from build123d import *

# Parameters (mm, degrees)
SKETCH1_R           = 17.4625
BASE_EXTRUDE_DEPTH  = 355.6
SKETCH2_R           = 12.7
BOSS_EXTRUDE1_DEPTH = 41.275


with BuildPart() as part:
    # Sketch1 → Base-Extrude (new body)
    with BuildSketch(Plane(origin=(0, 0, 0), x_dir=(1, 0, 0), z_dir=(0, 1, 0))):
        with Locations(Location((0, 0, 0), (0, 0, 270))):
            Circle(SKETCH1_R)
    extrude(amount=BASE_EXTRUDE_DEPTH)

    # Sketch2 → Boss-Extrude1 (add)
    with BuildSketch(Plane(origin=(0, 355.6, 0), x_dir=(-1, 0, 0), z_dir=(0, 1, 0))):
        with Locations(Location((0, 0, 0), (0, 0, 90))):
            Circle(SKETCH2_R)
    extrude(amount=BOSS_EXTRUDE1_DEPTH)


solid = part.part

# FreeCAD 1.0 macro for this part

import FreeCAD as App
import Part
import Sketcher
from FreeCAD import Vector
Q = App.Units.Quantity

doc = App.newDocument("Part")
params = doc.addObject("Spreadsheet::Sheet", "Params")
for row, (alias, value) in enumerate([
    ("sketch1_diameter", "1.375 in"),
    ("pad1_length", "14 in"),
    ("sketch2_diameter", "1 in"),
    ("pad2_length", "1.625 in"),
], start=1):
    params.set(f"A{row}", alias)
    params.set(f"B{row}", "=" + value)
    params.setAlias(f"B{row}", alias)

body = doc.addObject("PartDesign::Body", "Body")

sketch1 = doc.addObject("Sketcher::SketchObject", "Sketch")
body.addObject(sketch1)
sketch1.AttachmentSupport = (doc.XZ_Plane, [""])
sketch1.MapMode = "FlatFace"
sketch1.addGeometry(Part.Circle(Vector(0, 0, 0), Vector(0, 0, 1), 17.4625), False)
sketch1.addConstraint([
    Sketcher.Constraint("Coincident", 0, 3, -1, 1),
    Sketcher.Constraint("Diameter", 0, Q("1.375 in")),
])
sketch1.setExpression("Constraints[1]", "Params.sketch1_diameter")
pad1 = doc.addObject("PartDesign::Pad", "Pad")
body.addObject(pad1)
pad1.Profile = sketch1
pad1.setExpression("Length", "Params.pad1_length")
pad1.Reversed = True

sketch2 = doc.addObject("Sketcher::SketchObject", "Sketch001")
body.addObject(sketch2)
sketch2.AttachmentSupport = (doc.XZ_Plane, [""])
sketch2.MapMode = "FlatFace"
sketch2.AttachmentOffset = App.Placement(Vector(0, 0, -14 * 25.4), App.Rotation())
sketch2.addGeometry(Part.Circle(Vector(0, 0, 0), Vector(0, 0, 1), 12.7), False)
sketch2.addConstraint([
    Sketcher.Constraint("Coincident", 0, 3, -1, 1),
    Sketcher.Constraint("Diameter", 0, Q("1 in")),
])
sketch2.setExpression("Constraints[1]", "Params.sketch2_diameter")
pad2 = doc.addObject("PartDesign::Pad", "Pad001")
body.addObject(pad2)
pad2.Profile = sketch2
pad2.setExpression("Length", "Params.pad2_length")
pad2.Reversed = True

doc.recompute()
